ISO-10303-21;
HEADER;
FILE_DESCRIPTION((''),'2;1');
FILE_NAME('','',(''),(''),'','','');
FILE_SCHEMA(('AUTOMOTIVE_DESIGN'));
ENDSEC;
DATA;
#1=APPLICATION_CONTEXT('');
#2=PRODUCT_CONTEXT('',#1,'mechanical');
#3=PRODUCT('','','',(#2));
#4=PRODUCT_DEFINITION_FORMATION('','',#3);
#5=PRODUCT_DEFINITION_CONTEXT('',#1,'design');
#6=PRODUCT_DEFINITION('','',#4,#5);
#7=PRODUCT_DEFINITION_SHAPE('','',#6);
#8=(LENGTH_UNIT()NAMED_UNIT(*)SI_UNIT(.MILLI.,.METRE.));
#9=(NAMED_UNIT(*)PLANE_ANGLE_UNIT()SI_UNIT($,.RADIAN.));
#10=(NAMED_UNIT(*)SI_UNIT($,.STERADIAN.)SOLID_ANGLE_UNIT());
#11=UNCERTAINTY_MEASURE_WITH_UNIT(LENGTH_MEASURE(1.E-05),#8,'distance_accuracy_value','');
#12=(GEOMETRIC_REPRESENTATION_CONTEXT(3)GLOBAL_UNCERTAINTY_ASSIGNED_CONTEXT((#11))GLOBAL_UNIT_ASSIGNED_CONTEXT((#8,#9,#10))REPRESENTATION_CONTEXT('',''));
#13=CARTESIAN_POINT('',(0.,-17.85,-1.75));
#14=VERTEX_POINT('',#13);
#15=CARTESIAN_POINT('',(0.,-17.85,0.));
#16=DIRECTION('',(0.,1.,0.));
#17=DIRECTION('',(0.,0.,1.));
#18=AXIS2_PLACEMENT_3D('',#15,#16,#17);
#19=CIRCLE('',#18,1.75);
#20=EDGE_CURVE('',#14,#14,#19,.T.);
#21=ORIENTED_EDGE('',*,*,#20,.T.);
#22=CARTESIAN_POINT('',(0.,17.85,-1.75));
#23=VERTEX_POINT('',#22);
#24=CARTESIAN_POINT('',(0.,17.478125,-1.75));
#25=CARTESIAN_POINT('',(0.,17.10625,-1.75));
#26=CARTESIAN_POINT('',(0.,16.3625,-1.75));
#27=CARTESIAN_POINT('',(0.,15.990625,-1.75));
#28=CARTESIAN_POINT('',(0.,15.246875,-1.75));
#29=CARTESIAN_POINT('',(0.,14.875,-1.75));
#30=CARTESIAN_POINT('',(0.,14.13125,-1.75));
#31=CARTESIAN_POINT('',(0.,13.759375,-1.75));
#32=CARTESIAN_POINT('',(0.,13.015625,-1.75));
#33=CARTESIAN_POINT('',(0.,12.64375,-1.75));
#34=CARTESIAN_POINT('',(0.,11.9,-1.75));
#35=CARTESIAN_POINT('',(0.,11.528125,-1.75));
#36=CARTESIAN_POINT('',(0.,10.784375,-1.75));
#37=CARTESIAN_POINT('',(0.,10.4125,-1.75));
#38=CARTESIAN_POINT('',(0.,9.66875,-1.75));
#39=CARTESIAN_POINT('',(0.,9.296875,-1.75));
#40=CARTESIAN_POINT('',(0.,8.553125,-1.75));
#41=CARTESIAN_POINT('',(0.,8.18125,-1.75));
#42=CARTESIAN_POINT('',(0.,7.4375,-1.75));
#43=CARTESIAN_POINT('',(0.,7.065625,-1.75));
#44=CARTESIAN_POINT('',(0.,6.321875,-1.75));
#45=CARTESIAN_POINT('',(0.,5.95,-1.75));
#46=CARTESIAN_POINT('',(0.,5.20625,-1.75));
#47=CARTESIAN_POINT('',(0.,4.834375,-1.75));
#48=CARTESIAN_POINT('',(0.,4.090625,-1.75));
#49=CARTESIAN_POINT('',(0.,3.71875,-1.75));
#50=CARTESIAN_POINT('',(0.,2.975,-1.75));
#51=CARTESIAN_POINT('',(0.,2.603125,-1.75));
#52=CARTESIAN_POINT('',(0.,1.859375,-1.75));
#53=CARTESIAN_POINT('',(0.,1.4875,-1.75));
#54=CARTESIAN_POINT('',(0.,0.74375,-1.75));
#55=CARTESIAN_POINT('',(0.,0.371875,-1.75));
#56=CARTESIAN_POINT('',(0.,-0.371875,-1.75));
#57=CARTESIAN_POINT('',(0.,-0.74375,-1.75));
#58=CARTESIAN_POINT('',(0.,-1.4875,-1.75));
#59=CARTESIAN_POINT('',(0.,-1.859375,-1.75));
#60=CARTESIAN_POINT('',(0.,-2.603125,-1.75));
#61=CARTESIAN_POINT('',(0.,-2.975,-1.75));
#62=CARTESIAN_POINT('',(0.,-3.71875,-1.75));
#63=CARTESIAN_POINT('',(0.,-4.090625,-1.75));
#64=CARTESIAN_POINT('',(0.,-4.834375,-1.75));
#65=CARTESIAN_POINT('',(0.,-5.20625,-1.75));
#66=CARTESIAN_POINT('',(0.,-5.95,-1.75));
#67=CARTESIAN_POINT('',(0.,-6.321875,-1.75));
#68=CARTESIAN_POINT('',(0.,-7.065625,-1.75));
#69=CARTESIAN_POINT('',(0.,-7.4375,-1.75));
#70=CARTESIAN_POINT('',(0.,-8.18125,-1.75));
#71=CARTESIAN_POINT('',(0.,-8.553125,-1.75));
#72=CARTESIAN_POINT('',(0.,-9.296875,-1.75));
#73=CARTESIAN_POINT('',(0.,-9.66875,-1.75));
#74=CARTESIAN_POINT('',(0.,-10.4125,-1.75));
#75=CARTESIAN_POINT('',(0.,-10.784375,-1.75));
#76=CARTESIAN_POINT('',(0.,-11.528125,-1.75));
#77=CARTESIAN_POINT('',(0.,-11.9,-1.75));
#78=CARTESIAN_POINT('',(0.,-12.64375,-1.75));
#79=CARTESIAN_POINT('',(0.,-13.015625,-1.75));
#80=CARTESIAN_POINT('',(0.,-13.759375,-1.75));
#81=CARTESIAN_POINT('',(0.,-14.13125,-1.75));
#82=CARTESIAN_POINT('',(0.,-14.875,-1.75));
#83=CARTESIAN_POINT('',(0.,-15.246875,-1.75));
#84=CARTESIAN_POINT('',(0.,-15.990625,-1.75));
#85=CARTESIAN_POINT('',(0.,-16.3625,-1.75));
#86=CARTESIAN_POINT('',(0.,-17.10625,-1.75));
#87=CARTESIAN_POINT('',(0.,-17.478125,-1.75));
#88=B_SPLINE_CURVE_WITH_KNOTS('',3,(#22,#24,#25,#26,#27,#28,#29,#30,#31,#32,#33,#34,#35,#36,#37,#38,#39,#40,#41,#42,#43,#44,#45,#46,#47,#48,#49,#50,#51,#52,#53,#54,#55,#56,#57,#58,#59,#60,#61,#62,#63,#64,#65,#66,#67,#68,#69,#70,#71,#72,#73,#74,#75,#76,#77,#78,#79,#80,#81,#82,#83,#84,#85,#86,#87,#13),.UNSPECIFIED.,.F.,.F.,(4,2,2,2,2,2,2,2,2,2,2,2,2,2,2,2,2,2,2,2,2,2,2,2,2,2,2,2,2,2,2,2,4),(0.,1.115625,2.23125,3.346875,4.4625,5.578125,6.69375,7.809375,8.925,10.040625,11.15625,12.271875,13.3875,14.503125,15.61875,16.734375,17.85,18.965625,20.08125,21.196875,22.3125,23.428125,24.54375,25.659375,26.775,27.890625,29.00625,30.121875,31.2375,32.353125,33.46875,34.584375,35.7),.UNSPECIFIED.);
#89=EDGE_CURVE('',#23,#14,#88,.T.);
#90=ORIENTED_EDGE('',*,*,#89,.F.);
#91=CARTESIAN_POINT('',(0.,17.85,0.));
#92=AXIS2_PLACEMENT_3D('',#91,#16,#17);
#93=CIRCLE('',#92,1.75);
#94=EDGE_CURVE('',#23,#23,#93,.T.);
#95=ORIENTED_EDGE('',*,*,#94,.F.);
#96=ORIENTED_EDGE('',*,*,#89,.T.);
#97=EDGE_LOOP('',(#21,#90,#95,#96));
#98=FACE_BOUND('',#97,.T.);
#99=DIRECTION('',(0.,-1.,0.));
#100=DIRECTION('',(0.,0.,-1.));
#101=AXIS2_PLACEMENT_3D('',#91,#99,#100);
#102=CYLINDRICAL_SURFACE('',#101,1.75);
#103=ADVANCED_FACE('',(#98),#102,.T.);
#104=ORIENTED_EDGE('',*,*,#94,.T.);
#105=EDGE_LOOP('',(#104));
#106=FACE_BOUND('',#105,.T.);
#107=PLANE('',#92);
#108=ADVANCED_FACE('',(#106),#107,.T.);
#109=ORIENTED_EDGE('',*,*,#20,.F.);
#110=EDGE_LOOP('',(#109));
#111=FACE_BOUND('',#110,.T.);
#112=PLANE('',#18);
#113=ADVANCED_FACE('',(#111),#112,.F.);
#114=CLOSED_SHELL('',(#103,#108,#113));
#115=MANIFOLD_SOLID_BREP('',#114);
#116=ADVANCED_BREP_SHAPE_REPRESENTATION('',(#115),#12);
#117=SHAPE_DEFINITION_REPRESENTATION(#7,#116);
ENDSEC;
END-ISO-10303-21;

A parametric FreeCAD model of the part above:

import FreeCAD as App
import Part
import Sketcher

V = App.Vector

doc = App.newDocument("Part")
body = doc.addObject("PartDesign::Body", "Body")

# Sketch on XZ plane
sketch1 = body.newObject("Sketcher::SketchObject", "Sketch")
sketch1.AttachmentSupport = (doc.getObject("XZ_Plane"), [""])
sketch1.MapMode = "FlatFace"
sketch1.addGeometry(Part.Circle(V(0, 0, 0), V(0, 0, 1), 1.8), False)
sketch1.addConstraint([
    Sketcher.Constraint("Coincident", 0, 3, -1, 1),
    Sketcher.Constraint("Diameter", 0, 3.5),
])
pad1 = body.newObject("PartDesign::Pad", "Pad")
pad1.Profile = sketch1
pad1.Length = 35.7
pad1.Midplane = True

doc.recompute()
